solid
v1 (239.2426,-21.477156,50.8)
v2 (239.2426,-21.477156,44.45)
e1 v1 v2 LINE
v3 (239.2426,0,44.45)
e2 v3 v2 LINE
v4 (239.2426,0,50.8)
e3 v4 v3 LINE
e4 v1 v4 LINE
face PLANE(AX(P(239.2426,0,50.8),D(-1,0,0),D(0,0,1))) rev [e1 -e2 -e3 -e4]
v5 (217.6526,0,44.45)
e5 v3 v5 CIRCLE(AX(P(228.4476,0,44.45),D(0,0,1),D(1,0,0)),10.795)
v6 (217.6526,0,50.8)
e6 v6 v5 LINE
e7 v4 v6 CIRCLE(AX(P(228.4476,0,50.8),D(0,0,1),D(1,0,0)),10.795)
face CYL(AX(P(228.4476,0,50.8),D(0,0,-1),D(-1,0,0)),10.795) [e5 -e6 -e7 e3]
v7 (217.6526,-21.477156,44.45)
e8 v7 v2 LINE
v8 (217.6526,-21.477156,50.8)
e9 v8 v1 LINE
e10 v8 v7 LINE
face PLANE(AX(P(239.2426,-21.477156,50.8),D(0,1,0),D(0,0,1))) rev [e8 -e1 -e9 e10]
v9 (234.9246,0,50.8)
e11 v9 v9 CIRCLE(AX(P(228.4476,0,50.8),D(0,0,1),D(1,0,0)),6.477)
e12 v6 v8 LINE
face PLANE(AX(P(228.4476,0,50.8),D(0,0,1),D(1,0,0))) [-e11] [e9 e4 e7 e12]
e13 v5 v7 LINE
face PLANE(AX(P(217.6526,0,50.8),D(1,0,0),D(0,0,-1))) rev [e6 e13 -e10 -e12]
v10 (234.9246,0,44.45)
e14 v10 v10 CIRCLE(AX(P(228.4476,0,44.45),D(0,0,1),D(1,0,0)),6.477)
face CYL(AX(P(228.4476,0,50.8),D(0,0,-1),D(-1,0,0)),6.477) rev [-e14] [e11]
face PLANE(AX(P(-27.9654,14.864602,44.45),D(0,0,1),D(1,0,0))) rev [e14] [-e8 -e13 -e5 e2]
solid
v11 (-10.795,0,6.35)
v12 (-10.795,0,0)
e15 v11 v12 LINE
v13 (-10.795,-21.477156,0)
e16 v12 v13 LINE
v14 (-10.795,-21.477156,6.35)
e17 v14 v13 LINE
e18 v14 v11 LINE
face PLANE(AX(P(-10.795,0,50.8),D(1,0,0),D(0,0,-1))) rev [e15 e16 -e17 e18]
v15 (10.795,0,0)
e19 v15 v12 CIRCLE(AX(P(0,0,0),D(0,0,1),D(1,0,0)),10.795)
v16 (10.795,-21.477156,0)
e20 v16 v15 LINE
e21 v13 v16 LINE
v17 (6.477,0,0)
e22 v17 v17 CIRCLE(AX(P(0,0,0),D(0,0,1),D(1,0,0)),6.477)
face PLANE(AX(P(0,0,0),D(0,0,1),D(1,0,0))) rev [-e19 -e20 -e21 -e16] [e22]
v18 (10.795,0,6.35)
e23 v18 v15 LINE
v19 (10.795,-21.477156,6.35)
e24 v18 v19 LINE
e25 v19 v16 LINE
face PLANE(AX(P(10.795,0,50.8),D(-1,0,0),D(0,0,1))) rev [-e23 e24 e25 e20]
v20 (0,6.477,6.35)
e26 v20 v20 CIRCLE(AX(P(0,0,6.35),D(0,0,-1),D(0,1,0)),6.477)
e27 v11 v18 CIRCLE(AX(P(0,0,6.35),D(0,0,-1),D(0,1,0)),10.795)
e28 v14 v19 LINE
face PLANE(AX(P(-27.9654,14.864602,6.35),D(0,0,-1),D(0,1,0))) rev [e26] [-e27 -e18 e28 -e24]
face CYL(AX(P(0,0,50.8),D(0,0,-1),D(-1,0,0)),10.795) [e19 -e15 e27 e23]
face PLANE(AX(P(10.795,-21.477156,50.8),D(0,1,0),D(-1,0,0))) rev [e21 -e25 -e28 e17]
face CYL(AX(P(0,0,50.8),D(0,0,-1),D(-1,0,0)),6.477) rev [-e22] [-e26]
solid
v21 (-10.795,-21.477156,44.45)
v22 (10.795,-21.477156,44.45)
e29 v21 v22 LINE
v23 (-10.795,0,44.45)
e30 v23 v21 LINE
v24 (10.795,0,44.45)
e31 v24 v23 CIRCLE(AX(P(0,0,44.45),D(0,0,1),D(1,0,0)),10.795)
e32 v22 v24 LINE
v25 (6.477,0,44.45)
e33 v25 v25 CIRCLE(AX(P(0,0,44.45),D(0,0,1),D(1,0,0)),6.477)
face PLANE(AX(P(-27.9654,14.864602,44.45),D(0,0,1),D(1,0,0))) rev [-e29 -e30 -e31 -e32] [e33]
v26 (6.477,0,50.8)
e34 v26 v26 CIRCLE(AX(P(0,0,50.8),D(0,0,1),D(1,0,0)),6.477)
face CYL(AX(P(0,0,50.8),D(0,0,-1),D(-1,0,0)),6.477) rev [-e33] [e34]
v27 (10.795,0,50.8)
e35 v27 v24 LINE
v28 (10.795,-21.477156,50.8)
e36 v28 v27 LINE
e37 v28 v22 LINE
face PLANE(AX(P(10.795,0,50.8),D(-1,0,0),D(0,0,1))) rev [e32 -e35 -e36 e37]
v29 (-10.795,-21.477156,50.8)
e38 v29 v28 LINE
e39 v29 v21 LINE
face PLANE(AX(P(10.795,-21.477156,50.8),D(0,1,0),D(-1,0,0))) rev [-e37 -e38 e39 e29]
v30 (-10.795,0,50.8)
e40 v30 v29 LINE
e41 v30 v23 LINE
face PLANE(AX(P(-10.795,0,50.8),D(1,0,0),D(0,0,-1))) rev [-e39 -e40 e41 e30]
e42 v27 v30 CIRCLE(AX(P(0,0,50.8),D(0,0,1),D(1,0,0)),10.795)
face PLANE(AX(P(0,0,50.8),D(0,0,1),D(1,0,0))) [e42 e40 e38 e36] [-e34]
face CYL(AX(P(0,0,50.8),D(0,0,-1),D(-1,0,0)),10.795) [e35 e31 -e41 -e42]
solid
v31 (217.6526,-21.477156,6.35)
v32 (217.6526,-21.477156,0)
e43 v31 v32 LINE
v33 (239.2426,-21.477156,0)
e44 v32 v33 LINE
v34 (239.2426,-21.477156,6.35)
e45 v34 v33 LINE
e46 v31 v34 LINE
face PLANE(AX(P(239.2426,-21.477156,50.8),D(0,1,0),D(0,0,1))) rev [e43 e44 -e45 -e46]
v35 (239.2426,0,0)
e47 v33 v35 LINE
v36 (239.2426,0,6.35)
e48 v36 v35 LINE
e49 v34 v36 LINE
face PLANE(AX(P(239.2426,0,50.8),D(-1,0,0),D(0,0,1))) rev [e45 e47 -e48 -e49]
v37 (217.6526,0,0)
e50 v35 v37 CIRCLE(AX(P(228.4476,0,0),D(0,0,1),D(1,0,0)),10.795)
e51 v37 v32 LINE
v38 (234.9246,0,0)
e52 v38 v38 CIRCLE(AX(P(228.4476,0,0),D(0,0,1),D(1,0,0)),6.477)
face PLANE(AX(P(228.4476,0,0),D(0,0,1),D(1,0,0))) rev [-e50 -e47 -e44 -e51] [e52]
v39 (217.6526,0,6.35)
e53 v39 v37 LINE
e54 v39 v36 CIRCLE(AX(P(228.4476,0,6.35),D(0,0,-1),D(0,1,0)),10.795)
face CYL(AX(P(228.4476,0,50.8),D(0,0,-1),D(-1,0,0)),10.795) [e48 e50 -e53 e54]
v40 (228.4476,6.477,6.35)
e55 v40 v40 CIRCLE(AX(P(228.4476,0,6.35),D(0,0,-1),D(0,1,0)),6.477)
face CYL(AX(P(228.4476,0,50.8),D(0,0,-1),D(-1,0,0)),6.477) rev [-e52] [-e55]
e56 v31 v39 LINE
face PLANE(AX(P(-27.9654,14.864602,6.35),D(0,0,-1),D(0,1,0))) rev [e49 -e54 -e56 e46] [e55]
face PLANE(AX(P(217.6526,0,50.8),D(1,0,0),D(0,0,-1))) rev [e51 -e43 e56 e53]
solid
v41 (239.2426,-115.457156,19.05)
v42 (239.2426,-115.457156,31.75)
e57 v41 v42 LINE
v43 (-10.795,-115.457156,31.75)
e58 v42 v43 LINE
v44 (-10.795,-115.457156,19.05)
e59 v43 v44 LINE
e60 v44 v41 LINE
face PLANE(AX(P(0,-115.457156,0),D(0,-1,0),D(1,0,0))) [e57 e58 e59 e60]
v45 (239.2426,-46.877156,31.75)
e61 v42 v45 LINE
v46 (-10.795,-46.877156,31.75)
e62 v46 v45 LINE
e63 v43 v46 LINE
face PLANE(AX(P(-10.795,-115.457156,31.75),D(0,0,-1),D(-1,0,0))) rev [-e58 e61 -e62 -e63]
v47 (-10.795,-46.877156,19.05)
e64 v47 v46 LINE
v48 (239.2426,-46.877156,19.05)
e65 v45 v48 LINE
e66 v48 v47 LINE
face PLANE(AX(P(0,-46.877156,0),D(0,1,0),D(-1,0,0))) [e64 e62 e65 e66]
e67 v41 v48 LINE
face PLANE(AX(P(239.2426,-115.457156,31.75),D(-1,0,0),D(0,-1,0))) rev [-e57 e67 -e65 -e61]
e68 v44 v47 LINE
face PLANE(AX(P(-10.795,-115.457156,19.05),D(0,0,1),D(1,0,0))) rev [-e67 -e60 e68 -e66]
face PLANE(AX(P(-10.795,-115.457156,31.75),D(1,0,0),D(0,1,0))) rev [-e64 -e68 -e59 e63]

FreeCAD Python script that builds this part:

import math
import FreeCAD as App
import Part
import Sketcher

V = App.Vector
Q = App.Units.Quantity


def add_polygon(sketch, points):
    """Adds a closed chain of lines whose ends are joined by coincident constraints."""
    first, n = sketch.GeometryCount, len(points)
    for a, b in zip(points, points[1:] + points[:1]):
        sketch.addGeometry(Part.LineSegment(App.Vector(*a, 0), App.Vector(*b, 0)), False)
    for i in range(n):
        sketch.addConstraint(Sketcher.Constraint("Coincident", first + i, 2, first + (i + 1) % n, 1))

doc = App.newDocument("Part")
body = doc.addObject("PartDesign::Body", "Body")

# Sketch on XY plane
sketch1 = body.newObject("Sketcher::SketchObject", "Sketch")
sketch1.AttachmentSupport = (doc.getObject("XY_Plane"), [""])
sketch1.MapMode = "FlatFace"
sketch1.addGeometry([
    Part.LineSegment(V(-11, 0, 0), V(-11, -21, 0)),  # 0
    Part.LineSegment(V(-11, -21, 0), V(11, -21, 0)),  # 1
    Part.LineSegment(V(11, -21, 0), V(11, 0, 0)),  # 2
    Part.ArcOfCircle(Part.Circle(V(0, 0, 0), V(0, 0, 1), 11), math.radians(0), math.radians(180)),  # 3
    Part.Circle(V(0, 0, 0), V(0, 0, 1), 6),  # 4
], False)
sketch1.addConstraint([
    Sketcher.Constraint("Coincident", 0, 2, 1, 1),
    Sketcher.Constraint("Coincident", 1, 2, 2, 1),
    Sketcher.Constraint("Tangent", 2, 2, 3, 1),
    Sketcher.Constraint("Tangent", 3, 2, 0, 1),
    Sketcher.Constraint("Vertical", 0),
    Sketcher.Constraint("Horizontal", 1),
    Sketcher.Constraint("Vertical", 2),
    Sketcher.Constraint("Coincident", 3, 3, -1, 1),
    Sketcher.Constraint("Coincident", 4, 3, -1, 1),
    Sketcher.Constraint("Diameter", 4, Q("0.51 in")),
    Sketcher.Constraint("Radius", 3, Q("0.425 in")),
    Sketcher.Constraint("DistanceY", 0, 2, 0, 1, 21.477156),
])
pad1 = body.newObject("PartDesign::Pad", "Pad")
pad1.Profile = sketch1
pad1.Length = Q("2 in")
body2 = doc.addObject("PartDesign::Body", "Body001")

# Sketch on XY plane
sketch2 = body2.newObject("Sketcher::SketchObject", "Sketch001")
sketch2.AttachmentSupport = (doc.getObject("XY_Plane001"), [""])
sketch2.MapMode = "FlatFace"
sketch2.addGeometry([
    Part.LineSegment(V(218, 0, 0), V(218, -21, 0)),  # 0
    Part.LineSegment(V(218, -21, 0), V(239, -21, 0)),  # 1
    Part.LineSegment(V(239, -21, 0), V(239, 0, 0)),  # 2
    Part.ArcOfCircle(Part.Circle(V(228, 0, 0), V(0, 0, 1), 11), math.radians(0), math.radians(180)),  # 3
    Part.Circle(V(228, 0, 0), V(0, 0, 1), 6),  # 4
], False)
sketch2.addConstraint([
    Sketcher.Constraint("Coincident", 0, 2, 1, 1),
    Sketcher.Constraint("Coincident", 1, 2, 2, 1),
    Sketcher.Constraint("Tangent", 2, 2, 3, 1),
    Sketcher.Constraint("Tangent", 3, 2, 0, 1),
    Sketcher.Constraint("Vertical", 0),
    Sketcher.Constraint("Horizontal", 1),
    Sketcher.Constraint("Vertical", 2),
    Sketcher.Constraint("Coincident", 4, 3, 3, 3),
    Sketcher.Constraint("PointOnObject", 3, 3, -1),
    Sketcher.Constraint("Diameter", 4, Q("0.51 in")),
    Sketcher.Constraint("Radius", 3, Q("0.425 in")),
    Sketcher.Constraint("DistanceX", -1, 1, 3, 3, Q("8.994 in")),
    Sketcher.Constraint("DistanceY", 0, 2, 0, 1, 21.477156),
])
pad2 = body2.newObject("PartDesign::Pad", "Pad001")
pad2.Profile = sketch2
pad2.Length = Q("2 in")
body3 = doc.addObject("PartDesign::Body", "Body002")

# Sketch on YZ plane
sketch3 = body3.newObject("Sketcher::SketchObject", "Sketch002")
sketch3.AttachmentSupport = (doc.getObject("YZ_Plane002"), [""])
sketch3.MapMode = "FlatFace"
sketch3.AttachmentOffset = App.Placement(V(0, 0, 9.419 * 25.4), App.Rotation())
add_polygon(sketch3, [(15, 44), (-21, 44), (-21, 6), (15, 6)])  # lines 0-3
sketch3.addConstraint([
    Sketcher.Constraint("Horizontal", 0),
    Sketcher.Constraint("Vertical", 1),
    Sketcher.Constraint("Horizontal", 2),
    Sketcher.Constraint("Vertical", 3),
    Sketcher.Constraint("DistanceY", 1, 2, 1, 1, Q("1.5 in")),
    Sketcher.Constraint("DistanceY", -1, 1, 0, 2, Q("1.75 in")),
    Sketcher.Constraint("DistanceX", 0, 2, 0, 1, 36.341758),
    Sketcher.Constraint("DistanceX", 0, 2, -1, 1, 21.477156),
])
pad3 = body3.newObject("PartDesign::Pad", "Pad002")
pad3.Profile = sketch3
pad3.Length = Q("10.52 in")
pad3.Reversed = True
body.AllowCompound = True
doc.recompute()

body4 = doc.addObject("PartDesign::Body", "Body003")
body4.BaseFeature = body3
boolean = body.newObject("PartDesign::Boolean", "Boolean")
boolean.Type = "Cut"
boolean.addObjects([body4])
doc.recompute()
body2.AllowCompound = True
doc.recompute()

boolean2 = body2.newObject("PartDesign::Boolean", "Boolean001")
boolean2.Type = "Cut"
boolean2.addObjects([body3])
body5 = doc.addObject("PartDesign::Body", "Body004")

# Sketch on XZ plane
sketch4 = body5.newObject("Sketcher::SketchObject", "Sketch003")
sketch4.AttachmentSupport = (doc.getObject("XZ_Plane004"), [""])
sketch4.MapMode = "FlatFace"
sketch4.AttachmentOffset = App.Placement(V(0, 0, 21.477156), App.Rotation())
add_polygon(sketch4, [(-11, 32), (-11, 19), (239, 19), (239, 32)])  # lines 0-3
sketch4.addConstraint([
    Sketcher.Constraint("Vertical", 0),
    Sketcher.Constraint("Horizontal", 1),
    Sketcher.Constraint("Vertical", 2),
    Sketcher.Constraint("Horizontal", 3),
    Sketcher.Constraint("DistanceY", 0, 2, 0, 1, Q("0.5 in")),
    Sketcher.Constraint("DistanceX", 1, 1, 1, 2, Q("9.844 in")),
    Sketcher.Constraint("DistanceY", -1, 1, 0, 2, Q("0.75 in")),
    Sketcher.Constraint("DistanceX", 0, 2, -1, 1, Q("0.425 in")),
])
pad4 = body5.newObject("PartDesign::Pad", "Pad003")
pad4.Profile = sketch4
pad4.Length = Q("3.7 in")

# Sketch on XZ plane
sketch5 = body5.newObject("Sketcher::SketchObject", "Sketch004")
sketch5.AttachmentSupport = (doc.getObject("XZ_Plane004"), [""])
sketch5.MapMode = "FlatFace"
sketch5.AttachmentOffset = App.Placement(V(0, 0, 21.477156), App.Rotation())
add_polygon(sketch5, [(-11, 19), (-11, 32), (239, 32), (239, 19)])  # lines 0-3
sketch5.addConstraint([
    Sketcher.Constraint("Vertical", 0),
    Sketcher.Constraint("Horizontal", 1),
    Sketcher.Constraint("Vertical", 2),
    Sketcher.Constraint("Horizontal", 3),
    Sketcher.Constraint("DistanceY", 0, 1, 0, 2, Q("0.5 in")),
    Sketcher.Constraint("DistanceX", 1, 1, 1, 2, Q("9.844 in")),
    Sketcher.Constraint("DistanceY", -1, 1, 0, 2, Q("1.25 in")),
    Sketcher.Constraint("DistanceX", 0, 2, -1, 1, Q("0.425 in")),
])
pocket1 = body5.newObject("PartDesign::Pocket", "Pocket")
pocket1.Profile = sketch5
pocket1.Length = Q("1 in")
pocket1.Reversed = True

doc.recompute()
